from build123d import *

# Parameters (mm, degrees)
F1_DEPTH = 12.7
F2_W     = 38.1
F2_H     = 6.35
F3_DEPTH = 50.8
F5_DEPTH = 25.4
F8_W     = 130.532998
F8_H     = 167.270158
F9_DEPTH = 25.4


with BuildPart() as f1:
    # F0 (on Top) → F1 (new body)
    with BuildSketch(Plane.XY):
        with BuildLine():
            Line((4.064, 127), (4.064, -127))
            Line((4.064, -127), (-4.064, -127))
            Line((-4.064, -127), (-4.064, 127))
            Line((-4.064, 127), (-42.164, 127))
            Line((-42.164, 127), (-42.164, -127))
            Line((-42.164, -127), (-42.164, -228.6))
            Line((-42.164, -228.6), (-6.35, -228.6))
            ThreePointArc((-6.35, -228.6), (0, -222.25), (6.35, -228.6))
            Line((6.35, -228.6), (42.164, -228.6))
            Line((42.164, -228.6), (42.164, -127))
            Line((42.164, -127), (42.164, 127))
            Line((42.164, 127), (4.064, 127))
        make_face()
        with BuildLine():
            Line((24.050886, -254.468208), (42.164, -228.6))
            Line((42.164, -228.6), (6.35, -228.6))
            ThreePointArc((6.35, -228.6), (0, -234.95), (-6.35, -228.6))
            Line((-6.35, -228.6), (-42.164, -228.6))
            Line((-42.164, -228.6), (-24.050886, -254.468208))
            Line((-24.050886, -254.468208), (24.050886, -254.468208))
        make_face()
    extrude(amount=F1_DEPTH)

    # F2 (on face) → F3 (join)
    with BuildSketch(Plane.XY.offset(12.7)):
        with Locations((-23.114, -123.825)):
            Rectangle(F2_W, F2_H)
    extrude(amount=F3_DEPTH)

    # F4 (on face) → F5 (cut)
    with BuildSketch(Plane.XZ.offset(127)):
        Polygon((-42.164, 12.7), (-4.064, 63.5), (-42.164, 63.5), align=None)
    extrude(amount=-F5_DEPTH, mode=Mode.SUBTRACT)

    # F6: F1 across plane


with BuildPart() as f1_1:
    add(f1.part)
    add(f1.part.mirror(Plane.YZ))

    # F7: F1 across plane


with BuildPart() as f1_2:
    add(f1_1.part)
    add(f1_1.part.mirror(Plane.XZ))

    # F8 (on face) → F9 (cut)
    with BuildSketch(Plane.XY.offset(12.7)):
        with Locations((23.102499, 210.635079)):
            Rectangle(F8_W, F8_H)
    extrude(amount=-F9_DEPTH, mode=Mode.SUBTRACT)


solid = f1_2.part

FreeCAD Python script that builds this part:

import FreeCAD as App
import Part
import Sketcher
Q = App.Units.Quantity

doc = App.newDocument("Part")
params = doc.addObject("Spreadsheet::Sheet", "Params")
for row, (alias, value) in enumerate([
    ("sketch1_diameter", "0.5 in"),
    ("sketch1_height", "10 in"),
    ("sketch1_height2", "14 in"),
    ("sketch1_width", "1.5 in"),
    ("sketch1_width2", "0.32 in"),
    ("pad1_length", "0.5 in"),
    ("sketch2_width", "1.5 in"),
    ("sketch2_height", "0.25 in"),
    ("pad2_length", "2 in"),
    ("sketch3_height", "2 in"),
    ("sketch3_width", "1.5 in"),
    ("pocket1_length", "1 in"),
    ("pocket2_length", "1 in"),
], start=1):
    params.set(f"A{row}", alias)
    params.set(f"B{row}", "=" + value)
    params.setAlias(f"B{row}", alias)

body = doc.addObject("PartDesign::Body", "Body")

sketch1 = body.newObject("Sketcher::SketchObject", "Sketch")
sketch1.AttachmentSupport = (doc.getObject("XY_Plane"), [""])
sketch1.MapMode = "FlatFace"
sketch1.addGeometry(Part.LineSegment(App.Vector(4, 127, 0), App.Vector(4, -127, 0)), False)
sketch1.addGeometry(Part.LineSegment(App.Vector(4, -127, 0), App.Vector(-4, -127, 0)), False)
sketch1.addGeometry(Part.LineSegment(App.Vector(-4, -127, 0), App.Vector(-4, 127, 0)), False)
sketch1.addGeometry(Part.LineSegment(App.Vector(-4, 127, 0), App.Vector(-42, 127, 0)), False)
sketch1.addGeometry(Part.LineSegment(App.Vector(-42, 127, 0), App.Vector(-42, -229, 0)), False)
sketch1.addGeometry(Part.LineSegment(App.Vector(-42, -229, 0), App.Vector(-24, -254, 0)), False)
sketch1.addGeometry(Part.LineSegment(App.Vector(-24, -254, 0), App.Vector(24, -254, 0)), False)
sketch1.addGeometry(Part.LineSegment(App.Vector(24, -254, 0), App.Vector(42, -229, 0)), False)
sketch1.addGeometry(Part.LineSegment(App.Vector(42, -229, 0), App.Vector(42, 127, 0)), False)
sketch1.addGeometry(Part.LineSegment(App.Vector(42, 127, 0), App.Vector(4, 127, 0)), False)
sketch1.addGeometry(Part.Circle(App.Vector(0, -229, 0), App.Vector(0, 0, 1), 6), False)
sketch1.addConstraint(Sketcher.Constraint("Coincident", 0, 2, 1, 1))
sketch1.addConstraint(Sketcher.Constraint("Coincident", 1, 2, 2, 1))
sketch1.addConstraint(Sketcher.Constraint("Coincident", 2, 2, 3, 1))
sketch1.addConstraint(Sketcher.Constraint("Coincident", 3, 2, 4, 1))
sketch1.addConstraint(Sketcher.Constraint("Coincident", 4, 2, 5, 1))
sketch1.addConstraint(Sketcher.Constraint("Coincident", 5, 2, 6, 1))
sketch1.addConstraint(Sketcher.Constraint("Coincident", 6, 2, 7, 1))
sketch1.addConstraint(Sketcher.Constraint("Coincident", 7, 2, 8, 1))
sketch1.addConstraint(Sketcher.Constraint("Coincident", 8, 2, 9, 1))
sketch1.addConstraint(Sketcher.Constraint("Coincident", 9, 2, 0, 1))
sketch1.addConstraint(Sketcher.Constraint("Vertical", 0))
sketch1.addConstraint(Sketcher.Constraint("Horizontal", 1))
sketch1.addConstraint(Sketcher.Constraint("Vertical", 2))
sketch1.addConstraint(Sketcher.Constraint("Horizontal", 3))
sketch1.addConstraint(Sketcher.Constraint("Vertical", 4))
sketch1.addConstraint(Sketcher.Constraint("Horizontal", 6))
sketch1.addConstraint(Sketcher.Constraint("Vertical", 8))
sketch1.addConstraint(Sketcher.Constraint("Horizontal", 9))
sketch1.addConstraint(Sketcher.Constraint("Symmetric", 0, 2, 2, 2, -1, 1))
sketch1.addConstraint(Sketcher.Constraint("Symmetric", 4, 2, 7, 2, -2))
sketch1.addConstraint(Sketcher.Constraint("PointOnObject", 10, 3, -2))
sketch1.addConstraint(Sketcher.Constraint("Horizontal", 10, 3, 4, 2))
sketch1.addConstraint(Sketcher.Constraint("Horizontal", 3, 2, 8, 2))
sketch1.addConstraint(Sketcher.Constraint("Equal", 5, 7))
sketch1.addConstraint(Sketcher.Constraint("Diameter", 10, Q("0.5 in")))
sketch1.addConstraint(Sketcher.Constraint("DistanceY", 0, 2, 0, 1, Q("10 in")))
sketch1.addConstraint(Sketcher.Constraint("DistanceY", 4, 2, 4, 1, Q("14 in")))
sketch1.addConstraint(Sketcher.Constraint("DistanceX", 3, 2, 3, 1, Q("1.5 in")))
sketch1.addConstraint(Sketcher.Constraint("Angle", 5, Q("-55 deg")))
sketch1.addConstraint(Sketcher.Constraint("DistanceX", 1, 2, 1, 1, Q("0.32 in")))
sketch1.addConstraint(Sketcher.Constraint("DistanceX", 6, 1, 6, 2, 48.101772))
sketch1.setExpression("Constraints[24]", "Params.sketch1_diameter")
sketch1.setExpression("Constraints[25]", "Params.sketch1_height")
sketch1.setExpression("Constraints[26]", "Params.sketch1_height2")
sketch1.setExpression("Constraints[27]", "Params.sketch1_width")
sketch1.setExpression("Constraints[29]", "Params.sketch1_width2")
pad1 = body.newObject("PartDesign::Pad", "Pad")
pad1.Profile = sketch1
pad1.setExpression("Length", "Params.pad1_length")

sketch2 = body.newObject("Sketcher::SketchObject", "Sketch001")
sketch2.AttachmentSupport = (doc.getObject("XY_Plane"), [""])
sketch2.MapMode = "FlatFace"
sketch2.AttachmentOffset = App.Placement(App.Vector(0, 0, 0.5 * 25.4), App.Rotation())
sketch2.addGeometry(Part.LineSegment(App.Vector(-42, -121, 0), App.Vector(-42, -127, 0)), False)
sketch2.addGeometry(Part.LineSegment(App.Vector(-42, -127, 0), App.Vector(-4, -127, 0)), False)
sketch2.addGeometry(Part.LineSegment(App.Vector(-4, -127, 0), App.Vector(-4, -121, 0)), False)
sketch2.addGeometry(Part.LineSegment(App.Vector(-4, -121, 0), App.Vector(-42, -121, 0)), False)
sketch2.addConstraint(Sketcher.Constraint("Coincident", 0, 2, 1, 1))
sketch2.addConstraint(Sketcher.Constraint("Coincident", 1, 2, 2, 1))
sketch2.addConstraint(Sketcher.Constraint("Coincident", 2, 2, 3, 1))
sketch2.addConstraint(Sketcher.Constraint("Coincident", 3, 2, 0, 1))
sketch2.addConstraint(Sketcher.Constraint("Vertical", 0))
sketch2.addConstraint(Sketcher.Constraint("Horizontal", 1))
sketch2.addConstraint(Sketcher.Constraint("Vertical", 2))
sketch2.addConstraint(Sketcher.Constraint("Horizontal", 3))
sketch2.addConstraint(Sketcher.Constraint("DistanceX", 1, 1, 1, 2, Q("1.5 in")))
sketch2.addConstraint(Sketcher.Constraint("DistanceY", 0, 2, -1, 1, Q("5 in")))
sketch2.addConstraint(Sketcher.Constraint("DistanceY", 0, 2, 0, 1, Q("0.25 in")))
sketch2.addConstraint(Sketcher.Constraint("DistanceX", 0, 2, -1, 1, Q("1.66 in")))
sketch2.setExpression("Constraints[8]", "Params.sketch2_width")
sketch2.setExpression("Constraints[10]", "Params.sketch2_height")
pad2 = body.newObject("PartDesign::Pad", "Pad001")
pad2.Profile = sketch2
pad2.setExpression("Length", "Params.pad2_length")

sketch3 = body.newObject("Sketcher::SketchObject", "Sketch002")
sketch3.AttachmentSupport = (doc.getObject("XZ_Plane"), [""])
sketch3.MapMode = "FlatFace"
sketch3.AttachmentOffset = App.Placement(App.Vector(0, 0, 5 * 25.4), App.Rotation())
sketch3.addGeometry(Part.LineSegment(App.Vector(-42, 13, 0), App.Vector(-4, 64, 0)), False)
sketch3.addGeometry(Part.LineSegment(App.Vector(-4, 64, 0), App.Vector(-42, 64, 0)), False)
sketch3.addGeometry(Part.LineSegment(App.Vector(-42, 64, 0), App.Vector(-42, 13, 0)), False)
sketch3.addConstraint(Sketcher.Constraint("Coincident", 0, 2, 1, 1))
sketch3.addConstraint(Sketcher.Constraint("Coincident", 1, 2, 2, 1))
sketch3.addConstraint(Sketcher.Constraint("Coincident", 2, 2, 0, 1))
sketch3.addConstraint(Sketcher.Constraint("Horizontal", 1))
sketch3.addConstraint(Sketcher.Constraint("Vertical", 2))
sketch3.addConstraint(Sketcher.Constraint("DistanceY", 2, 2, 2, 1, Q("2 in")))
sketch3.addConstraint(Sketcher.Constraint("DistanceX", 1, 2, 1, 1, Q("1.5 in")))
sketch3.addConstraint(Sketcher.Constraint("DistanceY", -1, 1, 0, 2, Q("2.5 in")))
sketch3.addConstraint(Sketcher.Constraint("DistanceX", 0, 2, -1, 1, Q("0.16 in")))
sketch3.setExpression("Constraints[5]", "Params.sketch3_height")
sketch3.setExpression("Constraints[6]", "Params.sketch3_width")
pocket1 = body.newObject("PartDesign::Pocket", "Pocket")
pocket1.Profile = sketch3
pocket1.setExpression("Length", "Params.pocket1_length")
body2 = doc.addObject("PartDesign::Body", "Body001")
doc.recompute()

body2.BaseFeature = body
doc.recompute()

mirroring = doc.addObject("Part::Mirroring", "Mirroring")
mirroring.Source = body
mirroring.Base = App.Vector(0, 0, 0)
mirroring.Normal = App.Vector(1, 0, 0)
body3 = doc.addObject("PartDesign::Body", "Body002")
body3.BaseFeature = mirroring
boolean = body2.newObject("PartDesign::Boolean", "Boolean")
boolean.Type = "Fuse"
boolean.addObjects([body3])
doc.recompute()
body4 = doc.addObject("PartDesign::Body", "Body003")
doc.recompute()

body4.BaseFeature = body2
doc.recompute()

mirroring2 = doc.addObject("Part::Mirroring", "Mirroring001")
mirroring2.Source = body2
mirroring2.Base = App.Vector(0, 0, 0)
mirroring2.Normal = App.Vector(0, -1, 0)
body5 = doc.addObject("PartDesign::Body", "Body004")
body5.BaseFeature = mirroring2
boolean2 = body4.newObject("PartDesign::Boolean", "Boolean001")
boolean2.Type = "Fuse"
boolean2.addObjects([body5])
doc.recompute()

sketch4 = body4.newObject("Sketcher::SketchObject", "Sketch003")
sketch4.AttachmentSupport = (doc.getObject("XY_Plane003"), [""])
sketch4.MapMode = "FlatFace"
sketch4.AttachmentOffset = App.Placement(App.Vector(0, 0, 0.5 * 25.4), App.Rotation())
sketch4.addGeometry(Part.LineSegment(App.Vector(-42, 294, 0), App.Vector(-42, 127, 0)), False)
sketch4.addGeometry(Part.LineSegment(App.Vector(-42, 127, 0), App.Vector(88, 127, 0)), False)
sketch4.addGeometry(Part.LineSegment(App.Vector(88, 127, 0), App.Vector(88, 294, 0)), False)
sketch4.addGeometry(Part.LineSegment(App.Vector(88, 294, 0), App.Vector(-42, 294, 0)), False)
sketch4.addConstraint(Sketcher.Constraint("Coincident", 0, 2, 1, 1))
sketch4.addConstraint(Sketcher.Constraint("Coincident", 1, 2, 2, 1))
sketch4.addConstraint(Sketcher.Constraint("Coincident", 2, 2, 3, 1))
sketch4.addConstraint(Sketcher.Constraint("Coincident", 3, 2, 0, 1))
sketch4.addConstraint(Sketcher.Constraint("Vertical", 0))
sketch4.addConstraint(Sketcher.Constraint("Horizontal", 1))
sketch4.addConstraint(Sketcher.Constraint("Vertical", 2))
sketch4.addConstraint(Sketcher.Constraint("Horizontal", 3))
sketch4.addConstraint(Sketcher.Constraint("DistanceY", -1, 1, 0, 2, Q("5 in")))
sketch4.addConstraint(Sketcher.Constraint("DistanceX", 0, 2, -1, 1, Q("1.66 in")))
sketch4.addConstraint(Sketcher.Constraint("DistanceX", 1, 1, 1, 2, 130.532998))
sketch4.addConstraint(Sketcher.Constraint("DistanceY", 0, 2, 0, 1, 167.270158))
pocket2 = body4.newObject("PartDesign::Pocket", "Pocket001")
pocket2.Profile = sketch4
pocket2.setExpression("Length", "Params.pocket2_length")
mirroring.Visibility = False
mirroring2.Visibility = False

doc.recompute()
